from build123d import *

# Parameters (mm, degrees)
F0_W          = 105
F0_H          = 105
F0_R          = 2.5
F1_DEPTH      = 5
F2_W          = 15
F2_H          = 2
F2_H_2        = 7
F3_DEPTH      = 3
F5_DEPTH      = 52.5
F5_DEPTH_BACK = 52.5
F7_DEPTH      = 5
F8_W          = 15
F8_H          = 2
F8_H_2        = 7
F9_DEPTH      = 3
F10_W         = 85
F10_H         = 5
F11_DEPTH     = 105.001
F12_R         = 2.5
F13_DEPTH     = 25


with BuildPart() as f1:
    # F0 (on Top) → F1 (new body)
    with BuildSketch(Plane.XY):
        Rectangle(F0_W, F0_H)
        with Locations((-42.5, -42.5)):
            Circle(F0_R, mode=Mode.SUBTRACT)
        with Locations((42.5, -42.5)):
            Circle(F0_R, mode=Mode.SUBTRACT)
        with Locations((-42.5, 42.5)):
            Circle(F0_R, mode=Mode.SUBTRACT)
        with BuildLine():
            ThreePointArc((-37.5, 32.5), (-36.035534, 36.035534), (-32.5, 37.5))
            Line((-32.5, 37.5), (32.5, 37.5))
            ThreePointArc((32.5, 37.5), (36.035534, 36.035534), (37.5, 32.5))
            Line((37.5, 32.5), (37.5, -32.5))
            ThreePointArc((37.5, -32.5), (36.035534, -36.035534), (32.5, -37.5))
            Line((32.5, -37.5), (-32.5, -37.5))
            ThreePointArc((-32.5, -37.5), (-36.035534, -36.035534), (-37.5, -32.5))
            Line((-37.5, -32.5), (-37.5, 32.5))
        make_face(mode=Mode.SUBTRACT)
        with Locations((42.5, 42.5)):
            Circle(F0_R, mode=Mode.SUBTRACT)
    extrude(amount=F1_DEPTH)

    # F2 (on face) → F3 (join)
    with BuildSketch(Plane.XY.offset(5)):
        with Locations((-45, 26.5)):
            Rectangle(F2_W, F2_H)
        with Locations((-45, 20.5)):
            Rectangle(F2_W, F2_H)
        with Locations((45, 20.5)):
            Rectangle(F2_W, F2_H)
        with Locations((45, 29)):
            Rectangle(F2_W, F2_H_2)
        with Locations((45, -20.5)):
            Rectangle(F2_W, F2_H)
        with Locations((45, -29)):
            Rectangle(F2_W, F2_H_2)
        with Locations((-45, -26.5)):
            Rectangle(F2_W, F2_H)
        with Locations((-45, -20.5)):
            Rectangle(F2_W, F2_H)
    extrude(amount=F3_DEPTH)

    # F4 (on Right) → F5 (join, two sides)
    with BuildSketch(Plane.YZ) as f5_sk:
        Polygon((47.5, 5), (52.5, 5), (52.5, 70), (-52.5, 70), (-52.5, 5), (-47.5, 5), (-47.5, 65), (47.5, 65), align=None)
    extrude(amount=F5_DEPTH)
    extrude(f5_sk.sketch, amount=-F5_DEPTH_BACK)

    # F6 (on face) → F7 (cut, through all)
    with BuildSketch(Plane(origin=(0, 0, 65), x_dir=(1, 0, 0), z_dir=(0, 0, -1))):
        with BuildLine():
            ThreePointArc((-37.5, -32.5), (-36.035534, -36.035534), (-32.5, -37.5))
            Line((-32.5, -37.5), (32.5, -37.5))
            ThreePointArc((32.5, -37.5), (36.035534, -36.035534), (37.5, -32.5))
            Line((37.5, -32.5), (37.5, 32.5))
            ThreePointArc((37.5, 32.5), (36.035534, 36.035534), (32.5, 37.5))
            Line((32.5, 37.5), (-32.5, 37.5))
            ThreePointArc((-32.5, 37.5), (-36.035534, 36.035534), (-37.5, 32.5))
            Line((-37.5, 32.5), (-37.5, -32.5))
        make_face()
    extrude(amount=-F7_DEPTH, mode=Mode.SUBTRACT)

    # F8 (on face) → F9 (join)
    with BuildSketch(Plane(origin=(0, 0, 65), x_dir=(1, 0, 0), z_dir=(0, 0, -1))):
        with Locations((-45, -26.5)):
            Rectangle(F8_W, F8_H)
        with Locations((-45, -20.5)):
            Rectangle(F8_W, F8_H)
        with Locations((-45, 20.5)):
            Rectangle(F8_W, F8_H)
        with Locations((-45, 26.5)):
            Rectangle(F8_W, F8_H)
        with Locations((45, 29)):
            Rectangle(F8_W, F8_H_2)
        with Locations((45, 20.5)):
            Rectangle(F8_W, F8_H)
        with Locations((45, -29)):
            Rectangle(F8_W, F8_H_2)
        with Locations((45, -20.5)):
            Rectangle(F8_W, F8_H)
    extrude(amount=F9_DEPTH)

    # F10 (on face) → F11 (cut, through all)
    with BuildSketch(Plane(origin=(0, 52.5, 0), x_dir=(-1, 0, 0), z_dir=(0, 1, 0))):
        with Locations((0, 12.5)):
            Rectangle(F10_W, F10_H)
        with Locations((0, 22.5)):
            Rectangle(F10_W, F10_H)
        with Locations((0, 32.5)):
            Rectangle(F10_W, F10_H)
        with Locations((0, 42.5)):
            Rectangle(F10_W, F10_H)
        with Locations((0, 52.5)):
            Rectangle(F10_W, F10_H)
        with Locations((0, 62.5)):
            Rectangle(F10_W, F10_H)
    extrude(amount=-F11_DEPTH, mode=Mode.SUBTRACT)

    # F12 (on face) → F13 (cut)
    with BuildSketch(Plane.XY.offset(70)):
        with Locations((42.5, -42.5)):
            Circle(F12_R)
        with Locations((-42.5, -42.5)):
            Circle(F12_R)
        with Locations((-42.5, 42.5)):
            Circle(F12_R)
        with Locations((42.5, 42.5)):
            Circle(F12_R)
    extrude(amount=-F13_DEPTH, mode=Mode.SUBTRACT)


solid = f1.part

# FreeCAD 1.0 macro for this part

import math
import FreeCAD as App
import Part
import Sketcher
from FreeCAD import Vector


def add_polygon(sketch, points):
    """Adds a closed chain of lines whose ends are joined by coincident constraints."""
    first, n = sketch.GeometryCount, len(points)
    for a, b in zip(points, points[1:] + points[:1]):
        sketch.addGeometry(Part.LineSegment(App.Vector(*a, 0), App.Vector(*b, 0)), False)
    for i in range(n):
        sketch.addConstraint(Sketcher.Constraint("Coincident", first + i, 2, first + (i + 1) % n, 1))

doc = App.newDocument("Part")
body = doc.addObject("PartDesign::Body", "Body")

# Sketch on XY plane
sketch1 = body.newObject("Sketcher::SketchObject", "Sketch")
sketch1.AttachmentSupport = (doc.getObject("XY_Plane"), [""])
sketch1.MapMode = "FlatFace"
add_polygon(sketch1, [(-52.5, 52.5), (-52.5, -52.5), (52.5, -52.5), (52.5, 52.5)])  # lines 0-3
sketch1.addGeometry(Part.Circle(Vector(-42.5, -42.5, 0), Vector(0, 0, 1), 2.5), False)  # 4
sketch1.addGeometry(Part.Circle(Vector(42.5, -42.5, 0), Vector(0, 0, 1), 2.5), False)  # 5
sketch1.addGeometry(Part.Circle(Vector(-42.5, 42.5, 0), Vector(0, 0, 1), 2.5), False)  # 6
sketch1.addGeometry(Part.LineSegment(Vector(-37.5, -32.5, 0), Vector(-37.5, 32.5, 0)), False)  # 7
sketch1.addGeometry(Part.ArcOfCircle(Part.Circle(Vector(-32.5, 32.5, 0), Vector(0, 0, 1), 5), math.radians(90), math.radians(180)), False)  # 8
sketch1.addGeometry(Part.LineSegment(Vector(-32.5, 37.5, 0), Vector(32.5, 37.5, 0)), False)  # 9
sketch1.addGeometry(Part.ArcOfCircle(Part.Circle(Vector(32.5, 32.5, 0), Vector(0, 0, 1), 5), math.radians(0), math.radians(90)), False)  # 10
sketch1.addGeometry(Part.LineSegment(Vector(37.5, 32.5, 0), Vector(37.5, -32.5, 0)), False)  # 11
sketch1.addGeometry(Part.ArcOfCircle(Part.Circle(Vector(32.5, -32.5, 0), Vector(0, 0, 1), 5), math.radians(-90), math.radians(0)), False)  # 12
sketch1.addGeometry(Part.LineSegment(Vector(32.5, -37.5, 0), Vector(-32.5, -37.5, 0)), False)  # 13
sketch1.addGeometry(Part.ArcOfCircle(Part.Circle(Vector(-32.5, -32.5, 0), Vector(0, 0, 1), 5), math.radians(180), math.radians(270)), False)  # 14
sketch1.addGeometry(Part.Circle(Vector(42.5, 42.5, 0), Vector(0, 0, 1), 2.5), False)  # 15
sketch1.addConstraint([
    Sketcher.Constraint("Tangent", 7, 2, 8, 2),
    Sketcher.Constraint("Tangent", 8, 1, 9, 1),
    Sketcher.Constraint("Tangent", 9, 2, 10, 2),
    Sketcher.Constraint("Tangent", 10, 1, 11, 1),
    Sketcher.Constraint("Tangent", 11, 2, 12, 2),
    Sketcher.Constraint("Tangent", 12, 1, 13, 1),
    Sketcher.Constraint("Tangent", 13, 2, 14, 2),
    Sketcher.Constraint("Tangent", 14, 1, 7, 1),
    Sketcher.Constraint("Vertical", 0),
    Sketcher.Constraint("Horizontal", 1),
    Sketcher.Constraint("Vertical", 2),
    Sketcher.Constraint("Horizontal", 3),
    Sketcher.Constraint("Vertical", 7),
    Sketcher.Constraint("Horizontal", 9),
    Sketcher.Constraint("Vertical", 11),
    Sketcher.Constraint("Horizontal", 13),
    Sketcher.Constraint("Equal", 4, 5),
    Sketcher.Constraint("Equal", 5, 6),
    Sketcher.Constraint("Equal", 8, 10),
    Sketcher.Constraint("Equal", 10, 12),
    Sketcher.Constraint("Equal", 12, 14),
    Sketcher.Constraint("Equal", 6, 15),
    Sketcher.Constraint("Symmetric", 5, 3, 6, 3, -1, 1),
    Sketcher.Constraint("Symmetric", 8, 3, 12, 3, -1, 1),
    Sketcher.Constraint("Symmetric", 4, 3, 15, 3, -1, 1),
    Sketcher.Constraint("Symmetric", 0, 2, 2, 2, -1, 1),
    Sketcher.Constraint("Symmetric", 4, 3, 5, 3, -2),
    Sketcher.Constraint("Equal", 3, 0),
    Sketcher.Constraint("Equal", 13, 7),
    Sketcher.Constraint("Diameter", 4, 5.0),
    Sketcher.Constraint("Radius", 8, 5.0),
    Sketcher.Constraint("DistanceX", 1, 1, 1, 2, 105.0),
    Sketcher.Constraint("DistanceX", 9, 1, 9, 2, 65.0),
    Sketcher.Constraint("DistanceX", 4, 3, 5, 3, 85.0),
    Sketcher.Constraint("DistanceY", 4, 3, 6, 3, 85.0),
])
pad1 = body.newObject("PartDesign::Pad", "Pad")
pad1.Profile = sketch1
pad1.Length = 5

# Sketch on XY plane
sketch2 = body.newObject("Sketcher::SketchObject", "Sketch001")
sketch2.AttachmentSupport = (doc.getObject("XY_Plane"), [""])
sketch2.MapMode = "FlatFace"
sketch2.AttachmentOffset = App.Placement(Vector(0, 0, 5), App.Rotation())
add_polygon(sketch2, [(-52.5, 27.5), (-52.5, 25.5), (-37.5, 25.5), (-37.5, 27.5)])  # lines 0-3
add_polygon(sketch2, [(-52.5, 21.5), (-52.5, 19.5), (-37.5, 19.5), (-37.5, 21.5)])  # lines 4-7
add_polygon(sketch2, [(37.5, 21.5), (37.5, 19.5), (52.5, 19.5), (52.5, 21.5)])  # lines 8-11
add_polygon(sketch2, [(37.5, 32.5), (37.5, 25.5), (52.5, 25.5), (52.5, 32.5)])  # lines 12-15
add_polygon(sketch2, [(37.5, -19.5), (37.5, -21.5), (52.5, -21.5), (52.5, -19.5)])  # lines 16-19
add_polygon(sketch2, [(37.5, -25.5), (37.5, -32.5), (52.5, -32.5), (52.5, -25.5)])  # lines 20-23
add_polygon(sketch2, [(-52.5, -25.5), (-52.5, -27.5), (-37.5, -27.5), (-37.5, -25.5)])  # lines 24-27
add_polygon(sketch2, [(-52.5, -19.5), (-52.5, -21.5), (-37.5, -21.5), (-37.5, -19.5)])  # lines 28-31
sketch2.addConstraint([
    Sketcher.Constraint("Vertical", 0),
    Sketcher.Constraint("Horizontal", 1),
    Sketcher.Constraint("Vertical", 2),
    Sketcher.Constraint("Horizontal", 3),
    Sketcher.Constraint("Vertical", 4),
    Sketcher.Constraint("Horizontal", 5),
    Sketcher.Constraint("Vertical", 6),
    Sketcher.Constraint("Horizontal", 7),
    Sketcher.Constraint("Vertical", 8),
    Sketcher.Constraint("Horizontal", 9),
    Sketcher.Constraint("Vertical", 10),
    Sketcher.Constraint("Horizontal", 11),
    Sketcher.Constraint("Vertical", 12),
    Sketcher.Constraint("Horizontal", 13),
    Sketcher.Constraint("Vertical", 14),
    Sketcher.Constraint("Horizontal", 15),
    Sketcher.Constraint("Vertical", 16),
    Sketcher.Constraint("Horizontal", 17),
    Sketcher.Constraint("Vertical", 18),
    Sketcher.Constraint("Horizontal", 19),
    Sketcher.Constraint("Vertical", 20),
    Sketcher.Constraint("Horizontal", 21),
    Sketcher.Constraint("Vertical", 22),
    Sketcher.Constraint("Horizontal", 23),
    Sketcher.Constraint("Vertical", 24),
    Sketcher.Constraint("Horizontal", 25),
    Sketcher.Constraint("Vertical", 26),
    Sketcher.Constraint("Horizontal", 27),
    Sketcher.Constraint("Vertical", 28),
    Sketcher.Constraint("Horizontal", 29),
    Sketcher.Constraint("Vertical", 30),
    Sketcher.Constraint("Horizontal", 31),
    Sketcher.Constraint("Symmetric", 6, 2, 16, 2, -1, 1),
    Sketcher.Constraint("Symmetric", 4, 2, 18, 2, -1, 1),
    Sketcher.Constraint("Symmetric", 0, 2, 22, 2, -1, 1),
    Sketcher.Constraint("Symmetric", 12, 2, 26, 2, -1, 1),
    Sketcher.Constraint("Symmetric", 10, 2, 28, 2, -1, 1),
    Sketcher.Constraint("Symmetric", 8, 2, 30, 2, -1, 1),
    Sketcher.Constraint("Symmetric", 5, 2, 8, 2, -2),
    Sketcher.Constraint("Symmetric", 7, 2, 10, 2, -2),
    Sketcher.Constraint("Symmetric", 1, 2, 12, 2, -2),
    Sketcher.Constraint("Symmetric", 15, 2, 20, 2, -1),
    Sketcher.Constraint("Symmetric", 3, 2, 24, 2, -1),
    Sketcher.Constraint("Vertical", 3, 2, 4, 2),
    Sketcher.Constraint("Vertical", 2, 2, 5, 2),
    Sketcher.Constraint("Vertical", 10, 2, 13, 2),
    Sketcher.Constraint("Equal", 2, 4),
    Sketcher.Constraint("DistanceX", 1, 1, 1, 2, 15.0),
    Sketcher.Constraint("DistanceY", 0, 2, 0, 1, 2.0),
    Sketcher.Constraint("DistanceY", 12, 2, 12, 1, 7.0),
    Sketcher.Constraint("DistanceY", 4, 2, 0, 2, 6.0),
    Sketcher.Constraint("DistanceX", 5, 2, 8, 2, 75.0),
    Sketcher.Constraint("DistanceY", 16, 2, 8, 2, 41.0),
])
pad2 = body.newObject("PartDesign::Pad", "Pad001")
pad2.Profile = sketch2
pad2.Length = 3

# Sketch on YZ plane
sketch3 = body.newObject("Sketcher::SketchObject", "Sketch002")
sketch3.AttachmentSupport = (doc.getObject("YZ_Plane"), [""])
sketch3.MapMode = "FlatFace"
add_polygon(sketch3, [(48, 5), (52, 5), (52, 70), (-52, 70), (-52, 5), (-48, 5), (-48, 65), (48, 65)])  # lines 0-7
sketch3.addConstraint([
    Sketcher.Constraint("Horizontal", 0),
    Sketcher.Constraint("Vertical", 1),
    Sketcher.Constraint("Horizontal", 2),
    Sketcher.Constraint("Vertical", 3),
    Sketcher.Constraint("Horizontal", 4),
    Sketcher.Constraint("Vertical", 5),
    Sketcher.Constraint("Horizontal", 6),
    Sketcher.Constraint("Vertical", 7),
    Sketcher.Constraint("Symmetric", 0, 2, 3, 2, -2),
    Sketcher.Constraint("Equal", 0, 4),
    Sketcher.Constraint("DistanceX", 0, 1, 0, 2, 5.0),
    Sketcher.Constraint("DistanceX", 2, 2, 2, 1, 105.0),
    Sketcher.Constraint("DistanceY", 1, 1, 1, 2, 65.0),
    Sketcher.Constraint("DistanceY", 5, 1, 5, 2, 60.0),
    Sketcher.Constraint("DistanceY", -1, 1, 0, 2, 5.0),
])
pad3 = body.newObject("PartDesign::Pad", "Pad002")
pad3.Profile = sketch3
pad3.Type = "TwoLengths"
pad3.Length = 52.5
pad3.Length2 = 52.5

# Sketch on XY plane
sketch4 = body.newObject("Sketcher::SketchObject", "Sketch003")
sketch4.AttachmentSupport = (doc.getObject("XY_Plane"), [""])
sketch4.MapMode = "FlatFace"
sketch4.AttachmentOffset = App.Placement(Vector(0, 0, 65), App.Rotation())
sketch4.addGeometry([
    Part.ArcOfCircle(Part.Circle(Vector(-32.5, 32.5, 0), Vector(0, 0, 1), 5), math.radians(90), math.radians(180)),  # 0
    Part.LineSegment(Vector(-32.5, 37.5, 0), Vector(32.5, 37.5, 0)),  # 1
    Part.ArcOfCircle(Part.Circle(Vector(32.5, 32.5, 0), Vector(0, 0, 1), 5), math.radians(0), math.radians(90)),  # 2
    Part.LineSegment(Vector(37.5, 32.5, 0), Vector(37.5, -32.5, 0)),  # 3
    Part.ArcOfCircle(Part.Circle(Vector(32.5, -32.5, 0), Vector(0, 0, 1), 5), math.radians(-90), math.radians(0)),  # 4
    Part.LineSegment(Vector(32.5, -37.5, 0), Vector(-32.5, -37.5, 0)),  # 5
    Part.ArcOfCircle(Part.Circle(Vector(-32.5, -32.5, 0), Vector(0, 0, 1), 5), math.radians(180), math.radians(270)),  # 6
    Part.LineSegment(Vector(-37.5, -32.5, 0), Vector(-37.5, 32.5, 0)),  # 7
], False)
sketch4.addConstraint([
    Sketcher.Constraint("Tangent", 0, 1, 1, 1),
    Sketcher.Constraint("Tangent", 1, 2, 2, 2),
    Sketcher.Constraint("Tangent", 2, 1, 3, 1),
    Sketcher.Constraint("Tangent", 3, 2, 4, 2),
    Sketcher.Constraint("Tangent", 4, 1, 5, 1),
    Sketcher.Constraint("Tangent", 5, 2, 6, 2),
    Sketcher.Constraint("Tangent", 6, 1, 7, 1),
    Sketcher.Constraint("Tangent", 7, 2, 0, 2),
    Sketcher.Constraint("Horizontal", 1),
    Sketcher.Constraint("Vertical", 3),
    Sketcher.Constraint("Horizontal", 5),
    Sketcher.Constraint("Vertical", 7),
    Sketcher.Constraint("Equal", 0, 2),
    Sketcher.Constraint("Equal", 2, 4),
    Sketcher.Constraint("Equal", 4, 6),
    Sketcher.Constraint("Symmetric", 0, 3, 4, 3, -1, 1),
    Sketcher.Constraint("Equal", 5, 3),
    Sketcher.Constraint("Radius", 0, 5.0),
    Sketcher.Constraint("DistanceX", 1, 1, 1, 2, 65.0),
])
pocket1 = body.newObject("PartDesign::Pocket", "Pocket")
pocket1.Profile = sketch4
pocket1.Type = "ThroughAll"
pocket1.Reversed = True

# Sketch on XY plane
sketch5 = body.newObject("Sketcher::SketchObject", "Sketch004")
sketch5.AttachmentSupport = (doc.getObject("XY_Plane"), [""])
sketch5.MapMode = "FlatFace"
sketch5.AttachmentOffset = App.Placement(Vector(0, 0, 65), App.Rotation())
add_polygon(sketch5, [(-52.5, 25.5), (-52.5, 27.5), (-37.5, 27.5), (-37.5, 25.5)])  # lines 0-3
add_polygon(sketch5, [(-52.5, 19.5), (-52.5, 21.5), (-37.5, 21.5), (-37.5, 19.5)])  # lines 4-7
add_polygon(sketch5, [(-52.5, -21.5), (-52.5, -19.5), (-37.5, -19.5), (-37.5, -21.5)])  # lines 8-11
add_polygon(sketch5, [(-52.5, -27.5), (-52.5, -25.5), (-37.5, -25.5), (-37.5, -27.5)])  # lines 12-15
add_polygon(sketch5, [(37.5, -32.5), (37.5, -25.5), (52.5, -25.5), (52.5, -32.5)])  # lines 16-19
add_polygon(sketch5, [(37.5, -21.5), (37.5, -19.5), (52.5, -19.5), (52.5, -21.5)])  # lines 20-23
add_polygon(sketch5, [(37.5, 25.5), (37.5, 32.5), (52.5, 32.5), (52.5, 25.5)])  # lines 24-27
add_polygon(sketch5, [(37.5, 19.5), (37.5, 21.5), (52.5, 21.5), (52.5, 19.5)])  # lines 28-31
sketch5.addConstraint([
    Sketcher.Constraint("Vertical", 0),
    Sketcher.Constraint("Horizontal", 1),
    Sketcher.Constraint("Vertical", 2),
    Sketcher.Constraint("Horizontal", 3),
    Sketcher.Constraint("Vertical", 4),
    Sketcher.Constraint("Horizontal", 5),
    Sketcher.Constraint("Vertical", 6),
    Sketcher.Constraint("Horizontal", 7),
    Sketcher.Constraint("Vertical", 8),
    Sketcher.Constraint("Horizontal", 9),
    Sketcher.Constraint("Vertical", 10),
    Sketcher.Constraint("Horizontal", 11),
    Sketcher.Constraint("Vertical", 12),
    Sketcher.Constraint("Horizontal", 13),
    Sketcher.Constraint("Vertical", 14),
    Sketcher.Constraint("Horizontal", 15),
    Sketcher.Constraint("Vertical", 16),
    Sketcher.Constraint("Horizontal", 17),
    Sketcher.Constraint("Vertical", 18),
    Sketcher.Constraint("Horizontal", 19),
    Sketcher.Constraint("Vertical", 20),
    Sketcher.Constraint("Horizontal", 21),
    Sketcher.Constraint("Vertical", 22),
    Sketcher.Constraint("Horizontal", 23),
    Sketcher.Constraint("Vertical", 24),
    Sketcher.Constraint("Horizontal", 25),
    Sketcher.Constraint("Vertical", 26),
    Sketcher.Constraint("Horizontal", 27),
    Sketcher.Constraint("Vertical", 28),
    Sketcher.Constraint("Horizontal", 29),
    Sketcher.Constraint("Vertical", 30),
    Sketcher.Constraint("Horizontal", 31),
    Sketcher.Constraint("Symmetric", 2, 2, 16, 2, -1, 1),
    Sketcher.Constraint("Symmetric", 6, 2, 20, 2, -1, 1),
    Sketcher.Constraint("Symmetric", 4, 2, 22, 2, -1, 1),
    Sketcher.Constraint("Symmetric", 12, 2, 26, 2, -1, 1),
    Sketcher.Constraint("Symmetric", 10, 2, 28, 2, -1, 1),
    Sketcher.Constraint("Symmetric", 8, 2, 30, 2, -1, 1),
    Sketcher.Constraint("Symmetric", 13, 2, 16, 2, -2),
    Sketcher.Constraint("Symmetric", 9, 2, 20, 2, -2),
    Sketcher.Constraint("Symmetric", 11, 2, 22, 2, -2),
    Sketcher.Constraint("Symmetric", 0, 2, 15, 2, -1),
    Sketcher.Constraint("Symmetric", 19, 2, 24, 2, -1),
    Sketcher.Constraint("Vertical", 3, 2, 4, 2),
    Sketcher.Constraint("Vertical", 2, 2, 5, 2),
    Sketcher.Constraint("Vertical", 18, 2, 21, 2),
    Sketcher.Constraint("Equal", 2, 4),
    Sketcher.Constraint("DistanceX", 1, 1, 1, 2, 15.0),
    Sketcher.Constraint("DistanceY", 0, 1, 0, 2, 2.0),
    Sketcher.Constraint("DistanceY", 16, 1, 16, 2, 7.0),
    Sketcher.Constraint("DistanceY", 4, 2, 3, 2, 4.0),
    Sketcher.Constraint("DistanceY", 8, 2, 7, 2, 39.0),
    Sketcher.Constraint("DistanceX", 13, 2, 16, 2, 75.0),
])
pad4 = body.newObject("PartDesign::Pad", "Pad003")
pad4.Profile = sketch5
pad4.Length = 3
pad4.Reversed = True

# Sketch on XZ plane
sketch6 = body.newObject("Sketcher::SketchObject", "Sketch005")
sketch6.AttachmentSupport = (doc.getObject("XZ_Plane"), [""])
sketch6.MapMode = "FlatFace"
sketch6.AttachmentOffset = App.Placement(Vector(0, 0, -52.5), App.Rotation())
add_polygon(sketch6, [(42, 15), (42, 10), (-42, 10), (-42, 15)])  # lines 0-3
add_polygon(sketch6, [(42, 25), (42, 20), (-42, 20), (-42, 25)])  # lines 4-7
add_polygon(sketch6, [(42, 35), (42, 30), (-42, 30), (-42, 35)])  # lines 8-11
add_polygon(sketch6, [(42, 45), (42, 40), (-42, 40), (-42, 45)])  # lines 12-15
add_polygon(sketch6, [(42, 55), (42, 50), (-42, 50), (-42, 55)])  # lines 16-19
add_polygon(sketch6, [(42, 65), (42, 60), (-42, 60), (-42, 65)])  # lines 20-23
sketch6.addConstraint([
    Sketcher.Constraint("Vertical", 0),
    Sketcher.Constraint("Horizontal", 1),
    Sketcher.Constraint("Vertical", 2),
    Sketcher.Constraint("Horizontal", 3),
    Sketcher.Constraint("Vertical", 4),
    Sketcher.Constraint("Horizontal", 5),
    Sketcher.Constraint("Vertical", 6),
    Sketcher.Constraint("Horizontal", 7),
    Sketcher.Constraint("Vertical", 8),
    Sketcher.Constraint("Horizontal", 9),
    Sketcher.Constraint("Vertical", 10),
    Sketcher.Constraint("Horizontal", 11),
    Sketcher.Constraint("Vertical", 12),
    Sketcher.Constraint("Horizontal", 13),
    Sketcher.Constraint("Vertical", 14),
    Sketcher.Constraint("Horizontal", 15),
    Sketcher.Constraint("Vertical", 16),
    Sketcher.Constraint("Horizontal", 17),
    Sketcher.Constraint("Vertical", 18),
    Sketcher.Constraint("Horizontal", 19),
    Sketcher.Constraint("Vertical", 20),
    Sketcher.Constraint("Horizontal", 21),
    Sketcher.Constraint("Vertical", 22),
    Sketcher.Constraint("Horizontal", 23),
    Sketcher.Constraint("Vertical", 3, 2, 4, 2),
    Sketcher.Constraint("Vertical", 2, 2, 5, 2),
    Sketcher.Constraint("Vertical", 7, 2, 8, 2),
    Sketcher.Constraint("Vertical", 6, 2, 9, 2),
    Sketcher.Constraint("Vertical", 11, 2, 12, 2),
    Sketcher.Constraint("Vertical", 10, 2, 13, 2),
    Sketcher.Constraint("Vertical", 15, 2, 16, 2),
    Sketcher.Constraint("Vertical", 14, 2, 17, 2),
    Sketcher.Constraint("Vertical", 19, 2, 20, 2),
    Sketcher.Constraint("Vertical", 18, 2, 21, 2),
    Sketcher.Constraint("Equal", 2, 4),
    Sketcher.Constraint("Equal", 6, 8),
    Sketcher.Constraint("Equal", 10, 12),
    Sketcher.Constraint("Equal", 14, 16),
    Sketcher.Constraint("Equal", 18, 20),
    Sketcher.Constraint("DistanceX", 1, 2, 1, 1, 85.0),
    Sketcher.Constraint("DistanceY", 0, 2, 0, 1, 5.0),
    Sketcher.Constraint("DistanceY", -1, 1, 0, 2, 10.0),
    Sketcher.Constraint("DistanceY", -1, 1, 4, 2, 20.0),
    Sketcher.Constraint("DistanceY", -1, 1, 8, 2, 30.0),
    Sketcher.Constraint("DistanceY", -1, 1, 12, 2, 40.0),
    Sketcher.Constraint("DistanceY", -1, 1, 16, 2, 50.0),
    Sketcher.Constraint("DistanceY", -1, 1, 20, 2, 60.0),
    Sketcher.Constraint("DistanceX", -1, 1, 0, 2, 42.5),
])
pocket2 = body.newObject("PartDesign::Pocket", "Pocket001")
pocket2.Profile = sketch6
pocket2.Type = "ThroughAll"
pocket2.Reversed = True

# Sketch on XY plane
sketch7 = body.newObject("Sketcher::SketchObject", "Sketch006")
sketch7.AttachmentSupport = (doc.getObject("XY_Plane"), [""])
sketch7.MapMode = "FlatFace"
sketch7.AttachmentOffset = App.Placement(Vector(0, 0, 70), App.Rotation())
sketch7.addGeometry([
    Part.Circle(Vector(42.5, -42.5, 0), Vector(0, 0, 1), 2.5),
    Part.Circle(Vector(-42.5, -42.5, 0), Vector(0, 0, 1), 2.5),
    Part.Circle(Vector(-42.5, 42.5, 0), Vector(0, 0, 1), 2.5),
    Part.Circle(Vector(42.5, 42.5, 0), Vector(0, 0, 1), 2.5),
], False)
sketch7.addConstraint([
    Sketcher.Constraint("Equal", 0, 1),
    Sketcher.Constraint("Equal", 1, 2),
    Sketcher.Constraint("Equal", 2, 3),
    Sketcher.Constraint("Symmetric", 0, 3, 2, 3, -1, 1),
    Sketcher.Constraint("Symmetric", 1, 3, 3, 3, -1, 1),
    Sketcher.Constraint("Symmetric", 0, 3, 1, 3, -2),
    Sketcher.Constraint("Diameter", 0, 5.0),
    Sketcher.Constraint("DistanceX", 1, 3, 0, 3, 85.0),
    Sketcher.Constraint("DistanceY", 1, 3, 2, 3, 85.0),
])
pocket3 = body.newObject("PartDesign::Pocket", "Pocket002")
pocket3.Profile = sketch7
pocket3.Length = 25

doc.recompute()
